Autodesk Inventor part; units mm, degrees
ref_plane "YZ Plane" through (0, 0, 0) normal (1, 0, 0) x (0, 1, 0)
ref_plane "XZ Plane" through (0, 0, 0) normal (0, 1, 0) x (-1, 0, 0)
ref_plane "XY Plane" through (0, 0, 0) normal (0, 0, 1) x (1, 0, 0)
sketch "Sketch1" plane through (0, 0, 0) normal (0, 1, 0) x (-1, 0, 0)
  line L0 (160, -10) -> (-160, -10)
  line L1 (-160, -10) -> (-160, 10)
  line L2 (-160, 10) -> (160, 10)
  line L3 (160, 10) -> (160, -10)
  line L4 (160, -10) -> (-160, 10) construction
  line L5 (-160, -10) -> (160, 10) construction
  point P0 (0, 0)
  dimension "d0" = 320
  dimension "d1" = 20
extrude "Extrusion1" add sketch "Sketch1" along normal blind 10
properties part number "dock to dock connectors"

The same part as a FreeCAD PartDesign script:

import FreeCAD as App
import Part
import Sketcher
from FreeCAD import Vector
Q = App.Units.Quantity

doc = App.newDocument("Part")
body = doc.addObject("PartDesign::Body", "Body")

# Sketch on XZ plane
sketch1 = body.newObject("Sketcher::SketchObject", "Sketch")
sketch1.AttachmentSupport = (doc.getObject("XZ_Plane"), [""])
sketch1.MapMode = "FlatFace"
sketch1.addGeometry([
    Part.LineSegment(Vector(160, -10, 0), Vector(-160, -10, 0)),
    Part.LineSegment(Vector(-160, -10, 0), Vector(-160, 10, 0)),
    Part.LineSegment(Vector(-160, 10, 0), Vector(160, 10, 0)),
    Part.LineSegment(Vector(160, 10, 0), Vector(160, -10, 0)),
], False)
sketch1.addConstraint([
    Sketcher.Constraint("Coincident", 0, 2, 1, 1),
    Sketcher.Constraint("Coincident", 1, 2, 2, 1),
    Sketcher.Constraint("Coincident", 2, 2, 3, 1),
    Sketcher.Constraint("Coincident", 3, 2, 0, 1),
    Sketcher.Constraint("Horizontal", 0),
    Sketcher.Constraint("Vertical", 1),
    Sketcher.Constraint("Horizontal", 2),
    Sketcher.Constraint("Vertical", 3),
    Sketcher.Constraint("Symmetric", 0, 2, 2, 2, -1, 1),
    Sketcher.Constraint("DistanceX", 0, 2, 0, 1, Q("320 mm")),
    Sketcher.Constraint("DistanceY", 1, 1, 1, 2, Q("20 mm")),
])
pad1 = body.newObject("PartDesign::Pad", "Pad")
pad1.Profile = sketch1
pad1.Length = 10
pad1.Reversed = True

doc.recompute()
